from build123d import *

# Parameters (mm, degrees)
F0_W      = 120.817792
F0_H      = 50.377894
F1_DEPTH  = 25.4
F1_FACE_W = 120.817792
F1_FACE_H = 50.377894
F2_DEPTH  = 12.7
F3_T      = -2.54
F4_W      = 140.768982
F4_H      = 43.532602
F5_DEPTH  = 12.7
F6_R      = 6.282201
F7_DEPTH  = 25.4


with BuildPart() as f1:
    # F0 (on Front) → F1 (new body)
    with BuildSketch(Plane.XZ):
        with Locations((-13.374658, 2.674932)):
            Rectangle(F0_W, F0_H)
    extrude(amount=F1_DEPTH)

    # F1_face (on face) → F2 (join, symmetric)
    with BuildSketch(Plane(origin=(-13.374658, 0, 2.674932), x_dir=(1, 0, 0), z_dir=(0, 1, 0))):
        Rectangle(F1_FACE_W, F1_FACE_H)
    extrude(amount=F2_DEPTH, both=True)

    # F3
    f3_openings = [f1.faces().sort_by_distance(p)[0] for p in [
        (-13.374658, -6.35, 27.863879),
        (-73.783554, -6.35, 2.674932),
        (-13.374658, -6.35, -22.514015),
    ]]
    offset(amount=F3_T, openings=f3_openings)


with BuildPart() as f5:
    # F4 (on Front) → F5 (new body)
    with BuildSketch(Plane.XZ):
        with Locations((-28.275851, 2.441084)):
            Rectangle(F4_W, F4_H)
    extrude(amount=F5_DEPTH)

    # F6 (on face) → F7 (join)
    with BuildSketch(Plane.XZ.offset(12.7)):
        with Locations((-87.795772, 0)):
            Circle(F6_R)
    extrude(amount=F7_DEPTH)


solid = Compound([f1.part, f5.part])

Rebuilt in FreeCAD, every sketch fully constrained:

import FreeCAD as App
import Part
import Sketcher

V = App.Vector
Q = App.Units.Quantity


def faces_at(feature, points):
    """Names of the faces that lie closest to the given points."""
    faces = feature.Shape.Faces
    near = lambda p: min(range(len(faces)), key=lambda i: faces[i].distToShape(Part.Vertex(*p))[0])
    return sorted({f"Face{near(p) + 1}" for p in points})

doc = App.newDocument("Part")
body = doc.addObject("PartDesign::Body", "Body")

# Sketch on XZ plane
sketch1 = doc.addObject("Sketcher::SketchObject", "Sketch")
body.addObject(sketch1)
sketch1.AttachmentSupport = (doc.XZ_Plane, [""])
sketch1.MapMode = "FlatFace"
sketch1.addGeometry([
    Part.LineSegment(V(-73.783554, 27.863879, 0), V(-73.783554, -22.514015, 0)),
    Part.LineSegment(V(-73.783554, -22.514015, 0), V(47.034238, -22.514015, 0)),
    Part.LineSegment(V(47.034238, -22.514015, 0), V(47.034238, 27.863879, 0)),
    Part.LineSegment(V(47.034238, 27.863879, 0), V(-73.783554, 27.863879, 0)),
], False)
sketch1.addConstraint([
    Sketcher.Constraint("Coincident", 0, 2, 1, 1),
    Sketcher.Constraint("Coincident", 1, 2, 2, 1),
    Sketcher.Constraint("Coincident", 2, 2, 3, 1),
    Sketcher.Constraint("Coincident", 3, 2, 0, 1),
    Sketcher.Constraint("Vertical", 0),
    Sketcher.Constraint("Horizontal", 1),
    Sketcher.Constraint("Vertical", 2),
    Sketcher.Constraint("Horizontal", 3),
    Sketcher.Constraint("DistanceX", 1, 1, 1, 2, Q("120.817792 mm")),
    Sketcher.Constraint("DistanceY", 0, 2, 0, 1, Q("50.377894 mm")),
    Sketcher.Constraint("DistanceX", -1, 1, 1, 2, Q("47.034238 mm")),
    Sketcher.Constraint("DistanceY", -1, 1, 2, 2, Q("27.863879 mm")),
])
pad1 = doc.addObject("PartDesign::Pad", "Pad")
body.addObject(pad1)
pad1.Profile = sketch1
pad1.Length = Q("1 in")

# Sketch on XZ plane
sketch2 = doc.addObject("Sketcher::SketchObject", "Sketch001")
body.addObject(sketch2)
sketch2.AttachmentSupport = (doc.XZ_Plane, [""])
sketch2.MapMode = "FlatFace"
sketch2.addGeometry([
    Part.LineSegment(V(-73.783554, -22.514015, 0), V(-73.783554, 27.863879, 0)),
    Part.LineSegment(V(-73.783554, 27.863879, 0), V(47.034238, 27.863879, 0)),
    Part.LineSegment(V(47.034238, 27.863879, 0), V(47.034238, -22.514015, 0)),
    Part.LineSegment(V(47.034238, -22.514015, 0), V(-73.783554, -22.514015, 0)),
], False)
sketch2.addConstraint([
    Sketcher.Constraint("Coincident", 0, 2, 1, 1),
    Sketcher.Constraint("Coincident", 1, 2, 2, 1),
    Sketcher.Constraint("Coincident", 2, 2, 3, 1),
    Sketcher.Constraint("Coincident", 3, 2, 0, 1),
    Sketcher.Constraint("Vertical", 0),
    Sketcher.Constraint("Horizontal", 1),
    Sketcher.Constraint("Vertical", 2),
    Sketcher.Constraint("Horizontal", 3),
    Sketcher.Constraint("DistanceX", 1, 1, 1, 2, Q("120.817792 mm")),
    Sketcher.Constraint("DistanceY", 0, 1, 0, 2, Q("50.377894 mm")),
    Sketcher.Constraint("DistanceY", -1, 1, 0, 2, Q("27.863879 mm")),
    Sketcher.Constraint("DistanceX", -1, 1, 1, 2, Q("47.034238 mm")),
])
pad2 = doc.addObject("PartDesign::Pad", "Pad001")
body.addObject(pad2)
pad2.Profile = sketch2
pad2.Length = Q("1 in")
pad2.Midplane = True
doc.recompute()

thickness = doc.addObject("PartDesign::Thickness", "Thickness")
body.addObject(thickness)
thickness.Base = (pad2, faces_at(pad2, [(-13.375, -6.35, 27.864), (-73.784, -6.35, 2.675), (-13.375, -6.35, -22.514)]))
thickness.Value = Q("0.1 in")
thickness.Reversed = True
thickness.Join = "Arc"
body2 = doc.addObject("PartDesign::Body", "Body001")

# Sketch on XZ plane
sketch3 = doc.addObject("Sketcher::SketchObject", "Sketch002")
body2.addObject(sketch3)
sketch3.AttachmentSupport = (doc.getObject("XZ_Plane001"), [""])
sketch3.MapMode = "FlatFace"
sketch3.addGeometry([
    Part.LineSegment(V(-98.660342, 24.207385, 0), V(-98.660342, -19.325217, 0)),
    Part.LineSegment(V(-98.660342, -19.325217, 0), V(42.10864, -19.325217, 0)),
    Part.LineSegment(V(42.10864, -19.325217, 0), V(42.10864, 24.207385, 0)),
    Part.LineSegment(V(42.10864, 24.207385, 0), V(-98.660342, 24.207385, 0)),
], False)
sketch3.addConstraint([
    Sketcher.Constraint("Coincident", 0, 2, 1, 1),
    Sketcher.Constraint("Coincident", 1, 2, 2, 1),
    Sketcher.Constraint("Coincident", 2, 2, 3, 1),
    Sketcher.Constraint("Coincident", 3, 2, 0, 1),
    Sketcher.Constraint("Vertical", 0),
    Sketcher.Constraint("Horizontal", 1),
    Sketcher.Constraint("Vertical", 2),
    Sketcher.Constraint("Horizontal", 3),
    Sketcher.Constraint("DistanceY", 0, 2, 0, 1, Q("43.532602 mm")),
    Sketcher.Constraint("DistanceX", 1, 1, 1, 2, Q("140.768982 mm")),
    Sketcher.Constraint("DistanceX", 0, 2, -1, 1, Q("98.660342 mm")),
    Sketcher.Constraint("DistanceY", 0, 2, -1, 1, Q("19.325217 mm")),
])
pad3 = doc.addObject("PartDesign::Pad", "Pad002")
body2.addObject(pad3)
pad3.Profile = sketch3
pad3.Length = Q("0.5 in")

# Sketch on XZ plane
sketch4 = doc.addObject("Sketcher::SketchObject", "Sketch003")
body2.addObject(sketch4)
sketch4.AttachmentSupport = (doc.getObject("XZ_Plane001"), [""])
sketch4.MapMode = "FlatFace"
sketch4.AttachmentOffset = App.Placement(V(0, 0, 0.5 * 25.4), App.Rotation())
sketch4.addGeometry(Part.Circle(V(-87.795772, 0, 0), V(0, 0, 1), 6.282201), False)
sketch4.addConstraint([
    Sketcher.Constraint("PointOnObject", 0, 3, -1),
    Sketcher.Constraint("Diameter", 0, Q("12.564402 mm")),
    Sketcher.Constraint("DistanceX", 0, 3, -1, 1, Q("87.795772 mm")),
])
pad4 = doc.addObject("PartDesign::Pad", "Pad003")
body2.addObject(pad4)
pad4.Profile = sketch4
pad4.Length = Q("1 in")

doc.recompute()
